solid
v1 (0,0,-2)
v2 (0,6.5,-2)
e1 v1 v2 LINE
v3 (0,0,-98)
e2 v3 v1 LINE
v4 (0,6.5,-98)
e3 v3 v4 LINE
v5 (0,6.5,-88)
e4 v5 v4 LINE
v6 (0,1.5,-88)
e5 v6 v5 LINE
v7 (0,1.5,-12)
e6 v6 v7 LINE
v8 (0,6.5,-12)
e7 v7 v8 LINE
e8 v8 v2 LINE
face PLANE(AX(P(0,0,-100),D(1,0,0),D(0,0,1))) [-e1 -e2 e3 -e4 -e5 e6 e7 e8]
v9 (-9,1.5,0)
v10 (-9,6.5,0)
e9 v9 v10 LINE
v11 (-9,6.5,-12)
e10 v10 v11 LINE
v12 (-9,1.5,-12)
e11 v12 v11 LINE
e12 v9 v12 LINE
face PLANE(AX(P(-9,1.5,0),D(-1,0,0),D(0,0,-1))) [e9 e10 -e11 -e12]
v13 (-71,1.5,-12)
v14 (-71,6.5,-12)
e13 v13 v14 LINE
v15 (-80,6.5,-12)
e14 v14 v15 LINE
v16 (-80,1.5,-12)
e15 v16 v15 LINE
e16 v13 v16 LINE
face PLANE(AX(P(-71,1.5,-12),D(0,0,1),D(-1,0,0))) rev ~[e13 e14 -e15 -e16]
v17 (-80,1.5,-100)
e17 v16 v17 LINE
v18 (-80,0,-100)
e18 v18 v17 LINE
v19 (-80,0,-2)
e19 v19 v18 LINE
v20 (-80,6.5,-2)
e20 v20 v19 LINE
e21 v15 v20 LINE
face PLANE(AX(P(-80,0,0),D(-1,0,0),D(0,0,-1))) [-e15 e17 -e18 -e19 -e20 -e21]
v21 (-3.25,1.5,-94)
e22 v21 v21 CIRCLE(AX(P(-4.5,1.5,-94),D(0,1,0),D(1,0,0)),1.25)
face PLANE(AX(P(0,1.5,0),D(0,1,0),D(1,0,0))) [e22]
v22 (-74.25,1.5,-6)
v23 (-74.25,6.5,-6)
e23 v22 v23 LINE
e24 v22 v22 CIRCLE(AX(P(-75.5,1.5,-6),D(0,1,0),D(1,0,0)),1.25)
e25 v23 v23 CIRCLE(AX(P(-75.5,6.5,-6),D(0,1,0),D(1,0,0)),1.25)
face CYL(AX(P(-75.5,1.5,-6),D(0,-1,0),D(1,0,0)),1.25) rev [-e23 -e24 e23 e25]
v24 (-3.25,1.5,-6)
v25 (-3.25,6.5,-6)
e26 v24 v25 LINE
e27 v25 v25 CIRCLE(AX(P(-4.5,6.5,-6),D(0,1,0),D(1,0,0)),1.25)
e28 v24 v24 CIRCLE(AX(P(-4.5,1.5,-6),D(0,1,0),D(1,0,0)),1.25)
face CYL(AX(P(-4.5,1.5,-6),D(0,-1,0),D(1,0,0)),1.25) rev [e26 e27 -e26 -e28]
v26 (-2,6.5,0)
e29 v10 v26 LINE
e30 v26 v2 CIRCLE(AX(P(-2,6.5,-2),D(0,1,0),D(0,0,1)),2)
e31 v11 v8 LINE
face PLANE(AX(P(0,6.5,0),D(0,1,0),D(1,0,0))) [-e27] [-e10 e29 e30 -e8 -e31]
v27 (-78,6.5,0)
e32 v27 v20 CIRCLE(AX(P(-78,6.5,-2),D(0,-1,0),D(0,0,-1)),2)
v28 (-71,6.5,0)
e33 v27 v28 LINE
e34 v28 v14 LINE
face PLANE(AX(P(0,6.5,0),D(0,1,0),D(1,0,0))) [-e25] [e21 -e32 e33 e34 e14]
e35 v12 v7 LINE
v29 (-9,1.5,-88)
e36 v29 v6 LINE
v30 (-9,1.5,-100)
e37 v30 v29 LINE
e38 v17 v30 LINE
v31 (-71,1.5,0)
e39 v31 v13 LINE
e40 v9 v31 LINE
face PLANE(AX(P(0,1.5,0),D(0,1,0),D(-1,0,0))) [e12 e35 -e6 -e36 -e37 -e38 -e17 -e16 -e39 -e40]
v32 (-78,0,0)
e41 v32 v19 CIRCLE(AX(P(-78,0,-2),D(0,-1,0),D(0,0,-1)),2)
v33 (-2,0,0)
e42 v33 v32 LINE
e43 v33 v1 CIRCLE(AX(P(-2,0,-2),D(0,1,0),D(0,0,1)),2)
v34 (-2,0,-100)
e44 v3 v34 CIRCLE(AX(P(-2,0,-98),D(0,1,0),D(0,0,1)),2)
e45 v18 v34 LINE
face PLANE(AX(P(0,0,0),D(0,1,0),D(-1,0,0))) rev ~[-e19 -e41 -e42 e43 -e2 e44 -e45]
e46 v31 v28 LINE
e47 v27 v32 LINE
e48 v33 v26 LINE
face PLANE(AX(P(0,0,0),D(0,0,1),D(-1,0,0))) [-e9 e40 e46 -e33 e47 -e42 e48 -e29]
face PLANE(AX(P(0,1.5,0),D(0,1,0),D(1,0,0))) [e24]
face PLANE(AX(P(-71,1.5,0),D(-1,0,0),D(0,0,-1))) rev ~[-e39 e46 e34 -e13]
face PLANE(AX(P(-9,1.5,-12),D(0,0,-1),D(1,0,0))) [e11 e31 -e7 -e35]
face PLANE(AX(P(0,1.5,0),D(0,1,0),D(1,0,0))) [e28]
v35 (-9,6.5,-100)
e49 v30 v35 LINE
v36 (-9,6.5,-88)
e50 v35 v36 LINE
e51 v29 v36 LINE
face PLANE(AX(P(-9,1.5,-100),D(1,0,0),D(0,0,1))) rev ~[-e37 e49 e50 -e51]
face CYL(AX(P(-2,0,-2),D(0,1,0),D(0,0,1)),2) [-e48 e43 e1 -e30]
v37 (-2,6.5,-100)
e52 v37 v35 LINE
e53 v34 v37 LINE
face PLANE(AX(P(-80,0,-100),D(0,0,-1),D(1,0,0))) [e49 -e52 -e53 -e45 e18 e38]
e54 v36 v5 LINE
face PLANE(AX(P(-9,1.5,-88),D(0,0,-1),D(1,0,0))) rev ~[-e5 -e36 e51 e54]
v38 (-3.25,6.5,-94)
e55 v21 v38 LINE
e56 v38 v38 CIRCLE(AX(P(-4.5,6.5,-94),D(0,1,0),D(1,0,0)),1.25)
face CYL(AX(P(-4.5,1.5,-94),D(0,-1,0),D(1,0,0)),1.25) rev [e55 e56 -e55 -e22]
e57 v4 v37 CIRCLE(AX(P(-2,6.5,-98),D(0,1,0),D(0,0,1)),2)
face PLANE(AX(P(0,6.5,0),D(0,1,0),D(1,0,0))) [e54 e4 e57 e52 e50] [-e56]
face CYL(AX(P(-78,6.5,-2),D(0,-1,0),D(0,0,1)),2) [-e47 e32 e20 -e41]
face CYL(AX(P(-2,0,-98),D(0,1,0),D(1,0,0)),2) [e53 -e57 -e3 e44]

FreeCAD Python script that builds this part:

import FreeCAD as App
import Part
import Sketcher
from FreeCAD import Vector
Q = App.Units.Quantity


def edges_at(feature, points):
    """Names of the edges that pass closest to the given points."""
    edges = feature.Shape.Edges
    near = lambda p: min(range(len(edges)), key=lambda i: edges[i].distToShape(Part.Vertex(*p))[0])
    return sorted({f"Edge{near(p) + 1}" for p in points})

doc = App.newDocument("Part")
body = doc.addObject("PartDesign::Body", "Body")

sketch1 = body.newObject("Sketcher::SketchObject", "Sketch")
sketch1.AttachmentSupport = (doc.getObject("XZ_Plane"), [""])
sketch1.MapMode = "FlatFace"
sketch1.addGeometry(Part.LineSegment(Vector(-80, 0, 0), Vector(0, 0, 0)), False)
sketch1.addGeometry(Part.LineSegment(Vector(0, 0, 0), Vector(0, -100, 0)), False)
sketch1.addGeometry(Part.LineSegment(Vector(0, -100, 0), Vector(-80, -100, 0)), False)
sketch1.addGeometry(Part.LineSegment(Vector(-80, -100, 0), Vector(-80, 0, 0)), False)
sketch1.addConstraint(Sketcher.Constraint("Coincident", 0, 2, 1, 1))
sketch1.addConstraint(Sketcher.Constraint("Coincident", 1, 2, 2, 1))
sketch1.addConstraint(Sketcher.Constraint("Coincident", 2, 2, 3, 1))
sketch1.addConstraint(Sketcher.Constraint("Coincident", 3, 2, 0, 1))
sketch1.addConstraint(Sketcher.Constraint("Horizontal", 0))
sketch1.addConstraint(Sketcher.Constraint("Vertical", 1))
sketch1.addConstraint(Sketcher.Constraint("Horizontal", 2))
sketch1.addConstraint(Sketcher.Constraint("Vertical", 3))
sketch1.addConstraint(Sketcher.Constraint("Coincident", 0, 2, -1, 1))
sketch1.addConstraint(Sketcher.Constraint("DistanceX", 0, 1, 0, 2, Q("80 mm")))
sketch1.addConstraint(Sketcher.Constraint("DistanceY", 1, 2, 1, 1, Q("100 mm")))
pad1 = body.newObject("PartDesign::Pad", "Pad")
pad1.Profile = sketch1
pad1.Length = 1.5
pad1.Reversed = True

sketch2 = body.newObject("Sketcher::SketchObject", "Sketch001")
sketch2.AttachmentSupport = (doc.getObject("XZ_Plane"), [""])
sketch2.MapMode = "FlatFace"
sketch2.AttachmentOffset = App.Placement(Vector(0, 0, -1.5), App.Rotation())
sketch2.addGeometry(Part.LineSegment(Vector(-80, -12, 0), Vector(-80, 0, 0)), False)
sketch2.addGeometry(Part.LineSegment(Vector(-80, 0, 0), Vector(-71, 0, 0)), False)
sketch2.addGeometry(Part.LineSegment(Vector(-71, 0, 0), Vector(-71, -12, 0)), False)
sketch2.addGeometry(Part.LineSegment(Vector(-71, -12, 0), Vector(-80, -12, 0)), False)
sketch2.addGeometry(Part.LineSegment(Vector(0, -100, 0), Vector(-9, -100, 0)), False)
sketch2.addGeometry(Part.LineSegment(Vector(-9, -100, 0), Vector(-9, -88, 0)), False)
sketch2.addGeometry(Part.LineSegment(Vector(-9, -88, 0), Vector(0, -88, 0)), False)
sketch2.addGeometry(Part.LineSegment(Vector(0, -88, 0), Vector(0, -100, 0)), False)
sketch2.addGeometry(Part.LineSegment(Vector(-9, -12, 0), Vector(-9, 0, 0)), False)
sketch2.addGeometry(Part.LineSegment(Vector(-9, 0, 0), Vector(0, 0, 0)), False)
sketch2.addGeometry(Part.LineSegment(Vector(0, 0, 0), Vector(0, -12, 0)), False)
sketch2.addGeometry(Part.LineSegment(Vector(0, -12, 0), Vector(-9, -12, 0)), False)
sketch2.addConstraint(Sketcher.Constraint("Coincident", 0, 2, 1, 1))
sketch2.addConstraint(Sketcher.Constraint("Coincident", 1, 2, 2, 1))
sketch2.addConstraint(Sketcher.Constraint("Coincident", 2, 2, 3, 1))
sketch2.addConstraint(Sketcher.Constraint("Coincident", 3, 2, 0, 1))
sketch2.addConstraint(Sketcher.Constraint("Coincident", 4, 2, 5, 1))
sketch2.addConstraint(Sketcher.Constraint("Coincident", 5, 2, 6, 1))
sketch2.addConstraint(Sketcher.Constraint("Coincident", 6, 2, 7, 1))
sketch2.addConstraint(Sketcher.Constraint("Coincident", 7, 2, 4, 1))
sketch2.addConstraint(Sketcher.Constraint("Coincident", 8, 2, 9, 1))
sketch2.addConstraint(Sketcher.Constraint("Coincident", 9, 2, 10, 1))
sketch2.addConstraint(Sketcher.Constraint("Coincident", 10, 2, 11, 1))
sketch2.addConstraint(Sketcher.Constraint("Coincident", 11, 2, 8, 1))
sketch2.addConstraint(Sketcher.Constraint("Vertical", 0))
sketch2.addConstraint(Sketcher.Constraint("Horizontal", 1))
sketch2.addConstraint(Sketcher.Constraint("Vertical", 2))
sketch2.addConstraint(Sketcher.Constraint("Horizontal", 3))
sketch2.addConstraint(Sketcher.Constraint("Horizontal", 4))
sketch2.addConstraint(Sketcher.Constraint("Vertical", 5))
sketch2.addConstraint(Sketcher.Constraint("Horizontal", 6))
sketch2.addConstraint(Sketcher.Constraint("Vertical", 7))
sketch2.addConstraint(Sketcher.Constraint("Vertical", 8))
sketch2.addConstraint(Sketcher.Constraint("Horizontal", 9))
sketch2.addConstraint(Sketcher.Constraint("Vertical", 10))
sketch2.addConstraint(Sketcher.Constraint("Horizontal", 11))
sketch2.addConstraint(Sketcher.Constraint("Coincident", 9, 2, -1, 1))
sketch2.addConstraint(Sketcher.Constraint("PointOnObject", 0, 2, -1))
sketch2.addConstraint(Sketcher.Constraint("PointOnObject", 6, 2, -2))
sketch2.addConstraint(Sketcher.Constraint("Horizontal", 3, 2, 10, 2))
sketch2.addConstraint(Sketcher.Constraint("Vertical", 5, 2, 8, 2))
sketch2.addConstraint(Sketcher.Constraint("Equal", 3, 4))
sketch2.addConstraint(Sketcher.Constraint("Equal", 2, 5))
sketch2.addConstraint(Sketcher.Constraint("DistanceX", 1, 1, 1, 2, Q("9 mm")))
sketch2.addConstraint(Sketcher.Constraint("DistanceY", 0, 1, 0, 2, Q("12 mm")))
sketch2.addConstraint(Sketcher.Constraint("DistanceX", 0, 2, -1, 1, Q("80 mm")))
sketch2.addConstraint(Sketcher.Constraint("DistanceY", 4, 2, -1, 1, Q("100 mm")))
pad2 = body.newObject("PartDesign::Pad", "Pad001")
pad2.Profile = sketch2
pad2.Length = 5
pad2.Reversed = True

sketch3 = body.newObject("Sketcher::SketchObject", "Sketch002")
sketch3.AttachmentSupport = (doc.getObject("XZ_Plane"), [""])
sketch3.MapMode = "FlatFace"
sketch3.AttachmentOffset = App.Placement(Vector(0, 0, -1.5), App.Rotation())
sketch3.addGeometry(Part.Circle(Vector(-4.5, -94, 0), Vector(0, 0, 1), 1.2), False)
sketch3.addGeometry(Part.Circle(Vector(-4.5, -6, 0), Vector(0, 0, 1), 1.2), False)
sketch3.addGeometry(Part.Circle(Vector(-75.5, -6, 0), Vector(0, 0, 1), 1.2), False)
sketch3.addConstraint(Sketcher.Constraint("Equal", 0, 1))
sketch3.addConstraint(Sketcher.Constraint("Equal", 1, 2))
sketch3.addConstraint(Sketcher.Constraint("Horizontal", 1, 3, 2, 3))
sketch3.addConstraint(Sketcher.Constraint("Vertical", 0, 3, 1, 3))
sketch3.addConstraint(Sketcher.Constraint("Diameter", 0, Q("2.5 mm")))
sketch3.addConstraint(Sketcher.Constraint("DistanceY", 1, 3, -1, 1, Q("6 mm")))
sketch3.addConstraint(Sketcher.Constraint("DistanceX", 0, 3, -1, 1, Q("4.5 mm")))
sketch3.addConstraint(Sketcher.Constraint("DistanceY", 0, 3, -1, 1, Q("94 mm")))
sketch3.addConstraint(Sketcher.Constraint("DistanceX", 2, 3, 1, 3, Q("71 mm")))
pocket1 = body.newObject("PartDesign::Pocket", "Pocket")
pocket1.Profile = sketch3
pocket1.Length = 5
doc.recompute()

fillet = body.newObject("PartDesign::Fillet", "Fillet")
fillet.Base = (pocket1, edges_at(pocket1, [(0, 3.25, 0), (0, 3.25, -100), (-80, 3.25, 0)]))
fillet.Radius = 2

doc.recompute()
